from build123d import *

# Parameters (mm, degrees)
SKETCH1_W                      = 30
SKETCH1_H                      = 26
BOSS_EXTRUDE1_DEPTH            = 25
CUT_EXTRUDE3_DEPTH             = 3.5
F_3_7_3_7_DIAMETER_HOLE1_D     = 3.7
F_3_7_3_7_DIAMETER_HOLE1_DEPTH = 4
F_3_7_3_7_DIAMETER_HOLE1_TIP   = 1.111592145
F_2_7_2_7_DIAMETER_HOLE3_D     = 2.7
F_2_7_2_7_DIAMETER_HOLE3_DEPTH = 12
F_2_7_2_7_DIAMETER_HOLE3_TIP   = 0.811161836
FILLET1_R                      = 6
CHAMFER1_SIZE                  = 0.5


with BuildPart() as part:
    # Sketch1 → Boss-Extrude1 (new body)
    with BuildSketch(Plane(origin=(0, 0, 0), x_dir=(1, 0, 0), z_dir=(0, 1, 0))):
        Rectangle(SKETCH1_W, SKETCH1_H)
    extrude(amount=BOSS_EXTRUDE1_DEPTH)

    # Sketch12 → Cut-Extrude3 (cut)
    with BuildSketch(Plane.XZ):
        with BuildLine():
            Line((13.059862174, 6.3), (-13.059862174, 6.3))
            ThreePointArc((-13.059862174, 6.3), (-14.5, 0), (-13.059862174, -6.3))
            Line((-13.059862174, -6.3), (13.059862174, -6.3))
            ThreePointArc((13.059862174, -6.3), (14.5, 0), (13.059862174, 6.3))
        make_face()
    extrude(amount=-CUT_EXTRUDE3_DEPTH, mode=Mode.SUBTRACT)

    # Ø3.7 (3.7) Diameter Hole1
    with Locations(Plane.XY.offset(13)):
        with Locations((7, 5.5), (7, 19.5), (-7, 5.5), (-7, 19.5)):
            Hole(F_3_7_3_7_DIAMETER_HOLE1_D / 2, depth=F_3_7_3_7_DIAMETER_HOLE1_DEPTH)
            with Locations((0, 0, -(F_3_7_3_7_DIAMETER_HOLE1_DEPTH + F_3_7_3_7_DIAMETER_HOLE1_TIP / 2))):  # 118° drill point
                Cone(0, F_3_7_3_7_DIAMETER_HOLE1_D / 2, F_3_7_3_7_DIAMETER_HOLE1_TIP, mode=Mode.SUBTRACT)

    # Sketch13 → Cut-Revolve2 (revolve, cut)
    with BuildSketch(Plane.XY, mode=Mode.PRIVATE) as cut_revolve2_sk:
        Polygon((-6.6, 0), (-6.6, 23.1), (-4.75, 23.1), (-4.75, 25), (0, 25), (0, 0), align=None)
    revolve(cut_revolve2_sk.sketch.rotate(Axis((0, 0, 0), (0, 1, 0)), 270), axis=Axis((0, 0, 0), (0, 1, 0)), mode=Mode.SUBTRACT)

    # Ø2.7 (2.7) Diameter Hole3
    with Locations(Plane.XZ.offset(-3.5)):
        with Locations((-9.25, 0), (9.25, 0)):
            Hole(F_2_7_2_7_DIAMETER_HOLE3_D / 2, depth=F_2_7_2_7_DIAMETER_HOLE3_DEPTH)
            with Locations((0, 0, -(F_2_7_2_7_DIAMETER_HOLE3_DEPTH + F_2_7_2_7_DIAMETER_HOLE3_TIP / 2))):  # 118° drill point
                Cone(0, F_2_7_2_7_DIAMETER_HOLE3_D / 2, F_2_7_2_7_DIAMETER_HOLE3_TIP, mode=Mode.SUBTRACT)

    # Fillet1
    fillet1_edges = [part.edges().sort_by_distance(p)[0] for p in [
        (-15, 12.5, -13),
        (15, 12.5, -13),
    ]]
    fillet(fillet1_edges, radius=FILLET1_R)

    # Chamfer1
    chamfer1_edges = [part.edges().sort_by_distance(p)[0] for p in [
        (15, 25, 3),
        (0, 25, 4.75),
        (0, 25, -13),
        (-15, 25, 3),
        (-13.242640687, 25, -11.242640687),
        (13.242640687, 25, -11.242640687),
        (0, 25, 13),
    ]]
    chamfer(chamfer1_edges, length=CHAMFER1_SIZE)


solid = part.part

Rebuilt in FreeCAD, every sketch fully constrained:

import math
import FreeCAD as App
import Part
import Sketcher

V = App.Vector
Q = App.Units.Quantity


def edges_at(feature, points):
    """Names of the edges that pass closest to the given points."""
    edges = feature.Shape.Edges
    near = lambda p: min(range(len(edges)), key=lambda i: edges[i].distToShape(Part.Vertex(*p))[0])
    return sorted({f"Edge{near(p) + 1}" for p in points})

doc = App.newDocument("Part")
body = doc.addObject("PartDesign::Body", "Body")

# Sketch on XZ plane
sketch1 = body.newObject("Sketcher::SketchObject", "Sketch")
sketch1.AttachmentSupport = (doc.getObject("XZ_Plane"), [""])
sketch1.MapMode = "FlatFace"
sketch1.addGeometry(Part.LineSegment(V(-15, -13, 0), V(-15, 13, 0)), False)
sketch1.addGeometry(Part.LineSegment(V(-15, 13, 0), V(15, 13, 0)), False)
sketch1.addGeometry(Part.LineSegment(V(15, 13, 0), V(15, -13, 0)), False)
sketch1.addGeometry(Part.LineSegment(V(15, -13, 0), V(-15, -13, 0)), False)
sketch1.addConstraint(Sketcher.Constraint("Coincident", 0, 2, 1, 1))
sketch1.addConstraint(Sketcher.Constraint("Coincident", 1, 2, 2, 1))
sketch1.addConstraint(Sketcher.Constraint("Coincident", 2, 2, 3, 1))
sketch1.addConstraint(Sketcher.Constraint("Coincident", 3, 2, 0, 1))
sketch1.addConstraint(Sketcher.Constraint("Vertical", 0))
sketch1.addConstraint(Sketcher.Constraint("Horizontal", 1))
sketch1.addConstraint(Sketcher.Constraint("Vertical", 2))
sketch1.addConstraint(Sketcher.Constraint("Horizontal", 3))
sketch1.addConstraint(Sketcher.Constraint("Symmetric", 0, 2, 2, 2, -1, 1))
sketch1.addConstraint(Sketcher.Constraint("DistanceX", 1, 1, 1, 2, Q("30 mm")))
sketch1.addConstraint(Sketcher.Constraint("DistanceY", 0, 1, 0, 2, Q("26 mm")))
pad1 = body.newObject("PartDesign::Pad", "Pad")
pad1.Profile = sketch1
pad1.Length = 25
pad1.Reversed = True

# Sketch on XZ plane
sketch2 = body.newObject("Sketcher::SketchObject", "Sketch001")
sketch2.AttachmentSupport = (doc.getObject("XZ_Plane"), [""])
sketch2.MapMode = "FlatFace"
sketch2.addGeometry(Part.LineSegment(V(13, 6, 0), V(-13, 6, 0)), False)
sketch2.addGeometry(Part.ArcOfCircle(Part.Circle(V(0, 0, 0), V(0, 0, 1), 15), math.radians(154), math.radians(206)), False)
sketch2.addGeometry(Part.LineSegment(V(-13, -6, 0), V(13, -6, 0)), False)
sketch2.addGeometry(Part.ArcOfCircle(Part.Circle(V(0, 0, 0), V(0, 0, 1), 15), math.radians(-26), math.radians(26)), False)
sketch2.addConstraint(Sketcher.Constraint("Coincident", 0, 2, 1, 1))
sketch2.addConstraint(Sketcher.Constraint("Coincident", 1, 2, 2, 1))
sketch2.addConstraint(Sketcher.Constraint("Coincident", 2, 2, 3, 1))
sketch2.addConstraint(Sketcher.Constraint("Coincident", 3, 2, 0, 1))
sketch2.addConstraint(Sketcher.Constraint("Horizontal", 0))
sketch2.addConstraint(Sketcher.Constraint("Horizontal", 2))
sketch2.addConstraint(Sketcher.Constraint("Coincident", 1, 3, -1, 1))
sketch2.addConstraint(Sketcher.Constraint("Coincident", 3, 3, -1, 1))
sketch2.addConstraint(Sketcher.Constraint("Equal", 1, 3))
sketch2.addConstraint(Sketcher.Constraint("Vertical", 0, 2, 1, 2))
sketch2.addConstraint(Sketcher.Constraint("Radius", 1, Q("14.5 mm")))
sketch2.addConstraint(Sketcher.Constraint("DistanceY", -1, 1, 0, 2, Q("6.3 mm")))
pocket1 = body.newObject("PartDesign::Pocket", "Pocket")
pocket1.Profile = sketch2
pocket1.Length = 3.5

# Sketch on XY plane
sketch3 = body.newObject("Sketcher::SketchObject", "Sketch002")
sketch3.AttachmentSupport = (doc.getObject("XY_Plane"), [""])
sketch3.MapMode = "FlatFace"
sketch3.AttachmentOffset = App.Placement(V(0, 0, 13), App.Rotation())
sketch3.addGeometry(Part.Circle(V(7, 5.5, 0), V(0, 0, 1), 1.9), False)
sketch3.addGeometry(Part.Circle(V(7, 19.5, 0), V(0, 0, 1), 1.9), False)
sketch3.addGeometry(Part.Circle(V(-7, 5.5, 0), V(0, 0, 1), 1.9), False)
sketch3.addGeometry(Part.Circle(V(-7, 19.5, 0), V(0, 0, 1), 1.9), False)
sketch3.addConstraint(Sketcher.Constraint("Equal", 0, 1))
sketch3.addConstraint(Sketcher.Constraint("Equal", 1, 2))
sketch3.addConstraint(Sketcher.Constraint("Equal", 2, 3))
sketch3.addConstraint(Sketcher.Constraint("Symmetric", 0, 3, 2, 3, -2))
sketch3.addConstraint(Sketcher.Constraint("Symmetric", 1, 3, 3, 3, -2))
sketch3.addConstraint(Sketcher.Constraint("Vertical", 0, 3, 1, 3))
sketch3.addConstraint(Sketcher.Constraint("Diameter", 0, Q("3.7 mm")))
sketch3.addConstraint(Sketcher.Constraint("DistanceX", -1, 1, 0, 3, Q("7 mm")))
sketch3.addConstraint(Sketcher.Constraint("DistanceY", 0, 3, 1, 3, Q("14 mm")))
sketch3.addConstraint(Sketcher.Constraint("DistanceY", -1, 1, 0, 3, Q("5.5 mm")))
doc.recompute()
hole = body.newObject("PartDesign::Hole", "Hole")
hole.Profile = sketch3
hole.ThreadType = "None"
hole.Diameter = 3.7
hole.DepthType = "Dimension"
hole.Depth = 4
hole.DrillPoint = "Angled"
hole.DrillPointAngle = 118

# Sketch on XY plane
sketch4 = body.newObject("Sketcher::SketchObject", "Sketch003")
sketch4.AttachmentSupport = (doc.getObject("XY_Plane"), [""])
sketch4.MapMode = "FlatFace"
sketch4.addGeometry(Part.LineSegment(V(-6.6, 23.1, 0), V(-6.6, 0, 0)), False)
sketch4.addGeometry(Part.LineSegment(V(-6.6, 0, 0), V(0, 0, 0)), False)
sketch4.addGeometry(Part.LineSegment(V(0, 0, 0), V(0, 25, 0)), False)
sketch4.addGeometry(Part.LineSegment(V(0, 25, 0), V(-4.8, 25, 0)), False)
sketch4.addGeometry(Part.LineSegment(V(-4.8, 25, 0), V(-4.8, 23.1, 0)), False)
sketch4.addGeometry(Part.LineSegment(V(-4.8, 23.1, 0), V(-6.6, 23.1, 0)), False)
sketch4.addConstraint(Sketcher.Constraint("Coincident", 0, 2, 1, 1))
sketch4.addConstraint(Sketcher.Constraint("Coincident", 1, 2, 2, 1))
sketch4.addConstraint(Sketcher.Constraint("Coincident", 2, 2, 3, 1))
sketch4.addConstraint(Sketcher.Constraint("Coincident", 3, 2, 4, 1))
sketch4.addConstraint(Sketcher.Constraint("Coincident", 4, 2, 5, 1))
sketch4.addConstraint(Sketcher.Constraint("Coincident", 5, 2, 0, 1))
sketch4.addConstraint(Sketcher.Constraint("Vertical", 0))
sketch4.addConstraint(Sketcher.Constraint("Horizontal", 1))
sketch4.addConstraint(Sketcher.Constraint("Vertical", 2))
sketch4.addConstraint(Sketcher.Constraint("Horizontal", 3))
sketch4.addConstraint(Sketcher.Constraint("Vertical", 4))
sketch4.addConstraint(Sketcher.Constraint("Horizontal", 5))
sketch4.addConstraint(Sketcher.Constraint("Coincident", 1, 2, -1, 1))
sketch4.addConstraint(Sketcher.Constraint("DistanceY", 2, 1, 2, 2, Q("25 mm")))
sketch4.addConstraint(Sketcher.Constraint("DistanceX", 1, 1, 1, 2, Q("6.6 mm")))
sketch4.addConstraint(Sketcher.Constraint("DistanceY", 0, 2, 0, 1, Q("23.1 mm")))
sketch4.addConstraint(Sketcher.Constraint("DistanceX", 3, 2, 3, 1, Q("4.75 mm")))
groove = body.newObject("PartDesign::Groove", "Groove")
groove.Profile = sketch4
groove.ReferenceAxis = (sketch4, ["V_Axis"])
groove.Angle = 360

# Sketch on XZ plane
sketch5 = body.newObject("Sketcher::SketchObject", "Sketch004")
sketch5.AttachmentSupport = (doc.getObject("XZ_Plane"), [""])
sketch5.MapMode = "FlatFace"
sketch5.AttachmentOffset = App.Placement(V(0, 0, -3.5), App.Rotation())
sketch5.addGeometry(Part.Circle(V(-9.2, 0, 0), V(0, 0, 1), 1.4), False)
sketch5.addGeometry(Part.Circle(V(9.2, 0, 0), V(0, 0, 1), 1.4), False)
sketch5.addConstraint(Sketcher.Constraint("Equal", 0, 1))
sketch5.addConstraint(Sketcher.Constraint("Symmetric", 0, 3, 1, 3, -1, 1))
sketch5.addConstraint(Sketcher.Constraint("PointOnObject", 0, 3, -1))
sketch5.addConstraint(Sketcher.Constraint("Diameter", 0, Q("2.7 mm")))
sketch5.addConstraint(Sketcher.Constraint("DistanceX", 0, 3, 1, 3, Q("18.5 mm")))
doc.recompute()
hole2 = body.newObject("PartDesign::Hole", "Hole001")
hole2.Profile = sketch5
hole2.ThreadType = "None"
hole2.Diameter = 2.7
hole2.DepthType = "Dimension"
hole2.Depth = 12
hole2.DrillPoint = "Angled"
hole2.DrillPointAngle = 118
doc.recompute()

fillet = body.newObject("PartDesign::Fillet", "Fillet")
fillet.Base = (hole2, edges_at(hole2, [(-15, 12.5, -13), (15, 12.5, -13)]))
fillet.Radius = 6
doc.recompute()

chamfer = body.newObject("PartDesign::Chamfer", "Chamfer")
chamfer.Base = (fillet, edges_at(fillet, [
    (15, 25, 3),
    (0, 25, 4.75),
    (0, 25, -13),
    (-15, 25, 3),
    (-13.243, 25, -11.243),
    (13.243, 25, -11.243),
    (0, 25, 13),
]))
chamfer.Size = 0.5

doc.recompute()
